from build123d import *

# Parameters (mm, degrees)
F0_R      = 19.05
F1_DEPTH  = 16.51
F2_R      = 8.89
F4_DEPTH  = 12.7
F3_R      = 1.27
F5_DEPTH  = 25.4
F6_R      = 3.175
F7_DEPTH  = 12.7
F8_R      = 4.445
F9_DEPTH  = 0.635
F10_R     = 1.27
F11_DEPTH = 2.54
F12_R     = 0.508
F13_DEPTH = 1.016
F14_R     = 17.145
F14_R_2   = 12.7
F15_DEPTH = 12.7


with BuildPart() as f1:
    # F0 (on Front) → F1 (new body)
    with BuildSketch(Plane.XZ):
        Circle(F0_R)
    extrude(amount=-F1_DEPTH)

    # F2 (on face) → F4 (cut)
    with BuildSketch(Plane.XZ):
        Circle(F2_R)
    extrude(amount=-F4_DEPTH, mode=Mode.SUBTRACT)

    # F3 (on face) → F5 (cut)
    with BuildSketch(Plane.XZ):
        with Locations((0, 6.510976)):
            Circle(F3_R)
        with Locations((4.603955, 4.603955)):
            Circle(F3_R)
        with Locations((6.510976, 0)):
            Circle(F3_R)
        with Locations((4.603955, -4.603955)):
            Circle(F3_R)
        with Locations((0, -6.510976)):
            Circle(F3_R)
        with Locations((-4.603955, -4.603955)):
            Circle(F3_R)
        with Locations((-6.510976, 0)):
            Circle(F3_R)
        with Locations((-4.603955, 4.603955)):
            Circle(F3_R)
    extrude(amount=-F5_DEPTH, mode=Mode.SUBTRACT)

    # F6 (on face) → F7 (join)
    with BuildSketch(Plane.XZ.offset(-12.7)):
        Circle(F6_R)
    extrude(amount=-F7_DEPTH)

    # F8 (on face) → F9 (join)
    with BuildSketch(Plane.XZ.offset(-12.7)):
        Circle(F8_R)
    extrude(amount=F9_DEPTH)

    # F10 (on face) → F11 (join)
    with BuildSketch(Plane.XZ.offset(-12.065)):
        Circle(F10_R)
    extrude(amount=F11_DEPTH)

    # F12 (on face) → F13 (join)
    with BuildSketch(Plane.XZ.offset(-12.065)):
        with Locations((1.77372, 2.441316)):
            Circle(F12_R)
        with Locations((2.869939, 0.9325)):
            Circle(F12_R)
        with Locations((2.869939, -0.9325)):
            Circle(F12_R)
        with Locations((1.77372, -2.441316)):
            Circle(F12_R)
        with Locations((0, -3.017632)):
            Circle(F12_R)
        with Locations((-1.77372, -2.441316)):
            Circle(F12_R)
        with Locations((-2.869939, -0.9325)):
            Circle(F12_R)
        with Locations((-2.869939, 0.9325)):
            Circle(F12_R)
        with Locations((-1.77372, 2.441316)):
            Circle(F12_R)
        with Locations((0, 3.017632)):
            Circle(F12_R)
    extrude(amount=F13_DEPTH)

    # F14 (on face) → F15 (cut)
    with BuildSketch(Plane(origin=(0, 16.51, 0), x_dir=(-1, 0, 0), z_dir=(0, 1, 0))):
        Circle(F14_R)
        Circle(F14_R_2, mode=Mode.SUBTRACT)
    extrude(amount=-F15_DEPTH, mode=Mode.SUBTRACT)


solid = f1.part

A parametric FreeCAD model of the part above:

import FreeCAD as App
import Part
import Sketcher

V = App.Vector
Q = App.Units.Quantity

doc = App.newDocument("Part")
body = doc.addObject("PartDesign::Body", "Body")

sketch1 = body.newObject("Sketcher::SketchObject", "Sketch")
sketch1.AttachmentSupport = (doc.getObject("XZ_Plane"), [""])
sketch1.MapMode = "FlatFace"
sketch1.addGeometry(Part.Circle(V(0, 0, 0), V(0, 0, 1), 19), False)
sketch1.addConstraint([
    Sketcher.Constraint("Coincident", 0, 3, -1, 1),
    Sketcher.Constraint("Diameter", 0, Q("1.5 in")),
])
pad1 = body.newObject("PartDesign::Pad", "Pad")
pad1.Profile = sketch1
pad1.Length = Q("0.65 in")
pad1.Reversed = True

sketch2 = body.newObject("Sketcher::SketchObject", "Sketch001")
sketch2.AttachmentSupport = (doc.getObject("XZ_Plane"), [""])
sketch2.MapMode = "FlatFace"
sketch2.addGeometry(Part.Circle(V(0, 0, 0), V(0, 0, 1), 9), False)
sketch2.addConstraint([
    Sketcher.Constraint("Coincident", 0, 3, -1, 1),
    Sketcher.Constraint("Diameter", 0, Q("0.7 in")),
])
pocket1 = body.newObject("PartDesign::Pocket", "Pocket")
pocket1.Profile = sketch2
pocket1.Length = Q("0.5 in")

sketch3 = body.newObject("Sketcher::SketchObject", "Sketch002")
sketch3.AttachmentSupport = (doc.getObject("XZ_Plane"), [""])
sketch3.MapMode = "FlatFace"
sketch3.addGeometry([
    Part.Circle(V(0, 6.5, 0), V(0, 0, 1), 1.3),
    Part.Circle(V(4.6, 4.6, 0), V(0, 0, 1), 1.3),
    Part.Circle(V(6.5, 0, 0), V(0, 0, 1), 1.3),
    Part.Circle(V(4.6, -4.6, 0), V(0, 0, 1), 1.3),
    Part.Circle(V(0, -6.5, 0), V(0, 0, 1), 1.3),
    Part.Circle(V(-4.6, -4.6, 0), V(0, 0, 1), 1.3),
    Part.Circle(V(-6.5, 0, 0), V(0, 0, 1), 1.3),
    Part.Circle(V(-4.6, 4.6, 0), V(0, 0, 1), 1.3),
], False)
sketch3.addConstraint([
    Sketcher.Constraint("Equal", 0, 1),
    Sketcher.Constraint("Equal", 1, 2),
    Sketcher.Constraint("Equal", 2, 3),
    Sketcher.Constraint("Equal", 3, 4),
    Sketcher.Constraint("Equal", 4, 5),
    Sketcher.Constraint("Equal", 5, 6),
    Sketcher.Constraint("Equal", 6, 7),
    Sketcher.Constraint("Symmetric", 0, 3, 4, 3, -1, 1),
    Sketcher.Constraint("Symmetric", 1, 3, 5, 3, -1, 1),
    Sketcher.Constraint("Symmetric", 2, 3, 6, 3, -1, 1),
    Sketcher.Constraint("Symmetric", 3, 3, 7, 3, -1, 1),
    Sketcher.Constraint("Symmetric", 3, 3, 5, 3, -2),
    Sketcher.Constraint("PointOnObject", 0, 3, -2),
    Sketcher.Constraint("PointOnObject", 2, 3, -1),
    Sketcher.Constraint("Diameter", 0, Q("0.1 in")),
    Sketcher.Constraint("DistanceY", 1, 3, 0, 3, Q("1.907021 mm")),
    Sketcher.Constraint("DistanceX", 1, 3, 2, 3, Q("1.907021 mm")),
    Sketcher.Constraint("DistanceY", 3, 3, 1, 3, Q("9.20791 mm")),
    Sketcher.Constraint("DistanceX", 5, 3, 3, 3, Q("9.20791 mm")),
])
pocket2 = body.newObject("PartDesign::Pocket", "Pocket001")
pocket2.Profile = sketch3
pocket2.Length = Q("1 in")

sketch4 = body.newObject("Sketcher::SketchObject", "Sketch003")
sketch4.AttachmentSupport = (doc.getObject("XZ_Plane"), [""])
sketch4.MapMode = "FlatFace"
sketch4.AttachmentOffset = App.Placement(V(0, 0, -0.5 * 25.4), App.Rotation())
sketch4.addGeometry(Part.Circle(V(0, 0, 0), V(0, 0, 1), 3.2), False)
sketch4.addConstraint([
    Sketcher.Constraint("Coincident", 0, 3, -1, 1),
    Sketcher.Constraint("Diameter", 0, Q("0.25 in")),
])
pad2 = body.newObject("PartDesign::Pad", "Pad001")
pad2.Profile = sketch4
pad2.Length = Q("0.5 in")
pad2.Reversed = True

sketch5 = body.newObject("Sketcher::SketchObject", "Sketch004")
sketch5.AttachmentSupport = (doc.getObject("XZ_Plane"), [""])
sketch5.MapMode = "FlatFace"
sketch5.AttachmentOffset = App.Placement(V(0, 0, -0.5 * 25.4), App.Rotation())
sketch5.addGeometry(Part.Circle(V(0, 0, 0), V(0, 0, 1), 4.4), False)
sketch5.addConstraint([
    Sketcher.Constraint("Coincident", 0, 3, -1, 1),
    Sketcher.Constraint("Diameter", 0, Q("0.35 in")),
])
pad3 = body.newObject("PartDesign::Pad", "Pad002")
pad3.Profile = sketch5
pad3.Length = Q("0.025 in")

sketch6 = body.newObject("Sketcher::SketchObject", "Sketch005")
sketch6.AttachmentSupport = (doc.getObject("XZ_Plane"), [""])
sketch6.MapMode = "FlatFace"
sketch6.AttachmentOffset = App.Placement(V(0, 0, -0.475 * 25.4), App.Rotation())
sketch6.addGeometry(Part.Circle(V(0, 0, 0), V(0, 0, 1), 1.3), False)
sketch6.addConstraint([
    Sketcher.Constraint("Coincident", 0, 3, -1, 1),
    Sketcher.Constraint("Diameter", 0, Q("0.1 in")),
])
pad4 = body.newObject("PartDesign::Pad", "Pad003")
pad4.Profile = sketch6
pad4.Length = Q("0.1 in")

sketch7 = body.newObject("Sketcher::SketchObject", "Sketch006")
sketch7.AttachmentSupport = (doc.getObject("XZ_Plane"), [""])
sketch7.MapMode = "FlatFace"
sketch7.AttachmentOffset = App.Placement(V(0, 0, -0.475 * 25.4), App.Rotation())
sketch7.addGeometry([
    Part.Circle(V(1.8, 2.4, 0), V(0, 0, 1), 0.5),
    Part.Circle(V(2.9, 0.9, 0), V(0, 0, 1), 0.5),
    Part.Circle(V(2.9, -0.9, 0), V(0, 0, 1), 0.5),
    Part.Circle(V(1.8, -2.4, 0), V(0, 0, 1), 0.5),
    Part.Circle(V(0, -3, 0), V(0, 0, 1), 0.5),
    Part.Circle(V(-1.8, -2.4, 0), V(0, 0, 1), 0.5),
    Part.Circle(V(-2.9, -0.9, 0), V(0, 0, 1), 0.5),
    Part.Circle(V(-2.9, 0.9, 0), V(0, 0, 1), 0.5),
    Part.Circle(V(-1.8, 2.4, 0), V(0, 0, 1), 0.5),
    Part.Circle(V(0, 3, 0), V(0, 0, 1), 0.5),
], False)
sketch7.addConstraint([
    Sketcher.Constraint("Equal", 0, 1),
    Sketcher.Constraint("Equal", 1, 2),
    Sketcher.Constraint("Equal", 2, 3),
    Sketcher.Constraint("Equal", 3, 4),
    Sketcher.Constraint("Equal", 4, 5),
    Sketcher.Constraint("Equal", 5, 6),
    Sketcher.Constraint("Equal", 6, 7),
    Sketcher.Constraint("Equal", 7, 8),
    Sketcher.Constraint("Equal", 8, 9),
    Sketcher.Constraint("Symmetric", 0, 3, 5, 3, -1, 1),
    Sketcher.Constraint("Symmetric", 1, 3, 6, 3, -1, 1),
    Sketcher.Constraint("Symmetric", 2, 3, 7, 3, -1, 1),
    Sketcher.Constraint("Symmetric", 3, 3, 8, 3, -1, 1),
    Sketcher.Constraint("Symmetric", 4, 3, 9, 3, -1, 1),
    Sketcher.Constraint("Symmetric", 3, 3, 5, 3, -2),
    Sketcher.Constraint("Symmetric", 2, 3, 6, 3, -2),
    Sketcher.Constraint("PointOnObject", 4, 3, -2),
    Sketcher.Constraint("Diameter", 0, Q("0.04 in")),
    Sketcher.Constraint("DistanceY", -1, 1, 1, 3, Q("0.9325 mm")),
    Sketcher.Constraint("DistanceX", -1, 1, 0, 3, Q("1.77372 mm")),
    Sketcher.Constraint("DistanceX", -1, 1, 1, 3, Q("2.869939 mm")),
    Sketcher.Constraint("DistanceY", 4, 3, -1, 1, Q("3.017632 mm")),
    Sketcher.Constraint("DistanceY", -1, 1, 0, 3, Q("2.441316 mm")),
])
pad5 = body.newObject("PartDesign::Pad", "Pad004")
pad5.Profile = sketch7
pad5.Length = Q("0.04 in")

sketch8 = body.newObject("Sketcher::SketchObject", "Sketch007")
sketch8.AttachmentSupport = (doc.getObject("XZ_Plane"), [""])
sketch8.MapMode = "FlatFace"
sketch8.AttachmentOffset = App.Placement(V(0, 0, -0.65 * 25.4), App.Rotation())
sketch8.addGeometry([
    Part.Circle(V(0, 0, 0), V(0, 0, 1), 17),
    Part.Circle(V(0, 0, 0), V(0, 0, 1), 13),
], False)
sketch8.addConstraint([
    Sketcher.Constraint("Coincident", 0, 3, -1, 1),
    Sketcher.Constraint("Coincident", 1, 3, -1, 1),
    Sketcher.Constraint("Diameter", 1, Q("1 in")),
    Sketcher.Constraint("Diameter", 0, Q("1.35 in")),
])
pocket3 = body.newObject("PartDesign::Pocket", "Pocket002")
pocket3.Profile = sketch8
pocket3.Length = Q("0.5 in")
pocket3.Reversed = True

doc.recompute()
